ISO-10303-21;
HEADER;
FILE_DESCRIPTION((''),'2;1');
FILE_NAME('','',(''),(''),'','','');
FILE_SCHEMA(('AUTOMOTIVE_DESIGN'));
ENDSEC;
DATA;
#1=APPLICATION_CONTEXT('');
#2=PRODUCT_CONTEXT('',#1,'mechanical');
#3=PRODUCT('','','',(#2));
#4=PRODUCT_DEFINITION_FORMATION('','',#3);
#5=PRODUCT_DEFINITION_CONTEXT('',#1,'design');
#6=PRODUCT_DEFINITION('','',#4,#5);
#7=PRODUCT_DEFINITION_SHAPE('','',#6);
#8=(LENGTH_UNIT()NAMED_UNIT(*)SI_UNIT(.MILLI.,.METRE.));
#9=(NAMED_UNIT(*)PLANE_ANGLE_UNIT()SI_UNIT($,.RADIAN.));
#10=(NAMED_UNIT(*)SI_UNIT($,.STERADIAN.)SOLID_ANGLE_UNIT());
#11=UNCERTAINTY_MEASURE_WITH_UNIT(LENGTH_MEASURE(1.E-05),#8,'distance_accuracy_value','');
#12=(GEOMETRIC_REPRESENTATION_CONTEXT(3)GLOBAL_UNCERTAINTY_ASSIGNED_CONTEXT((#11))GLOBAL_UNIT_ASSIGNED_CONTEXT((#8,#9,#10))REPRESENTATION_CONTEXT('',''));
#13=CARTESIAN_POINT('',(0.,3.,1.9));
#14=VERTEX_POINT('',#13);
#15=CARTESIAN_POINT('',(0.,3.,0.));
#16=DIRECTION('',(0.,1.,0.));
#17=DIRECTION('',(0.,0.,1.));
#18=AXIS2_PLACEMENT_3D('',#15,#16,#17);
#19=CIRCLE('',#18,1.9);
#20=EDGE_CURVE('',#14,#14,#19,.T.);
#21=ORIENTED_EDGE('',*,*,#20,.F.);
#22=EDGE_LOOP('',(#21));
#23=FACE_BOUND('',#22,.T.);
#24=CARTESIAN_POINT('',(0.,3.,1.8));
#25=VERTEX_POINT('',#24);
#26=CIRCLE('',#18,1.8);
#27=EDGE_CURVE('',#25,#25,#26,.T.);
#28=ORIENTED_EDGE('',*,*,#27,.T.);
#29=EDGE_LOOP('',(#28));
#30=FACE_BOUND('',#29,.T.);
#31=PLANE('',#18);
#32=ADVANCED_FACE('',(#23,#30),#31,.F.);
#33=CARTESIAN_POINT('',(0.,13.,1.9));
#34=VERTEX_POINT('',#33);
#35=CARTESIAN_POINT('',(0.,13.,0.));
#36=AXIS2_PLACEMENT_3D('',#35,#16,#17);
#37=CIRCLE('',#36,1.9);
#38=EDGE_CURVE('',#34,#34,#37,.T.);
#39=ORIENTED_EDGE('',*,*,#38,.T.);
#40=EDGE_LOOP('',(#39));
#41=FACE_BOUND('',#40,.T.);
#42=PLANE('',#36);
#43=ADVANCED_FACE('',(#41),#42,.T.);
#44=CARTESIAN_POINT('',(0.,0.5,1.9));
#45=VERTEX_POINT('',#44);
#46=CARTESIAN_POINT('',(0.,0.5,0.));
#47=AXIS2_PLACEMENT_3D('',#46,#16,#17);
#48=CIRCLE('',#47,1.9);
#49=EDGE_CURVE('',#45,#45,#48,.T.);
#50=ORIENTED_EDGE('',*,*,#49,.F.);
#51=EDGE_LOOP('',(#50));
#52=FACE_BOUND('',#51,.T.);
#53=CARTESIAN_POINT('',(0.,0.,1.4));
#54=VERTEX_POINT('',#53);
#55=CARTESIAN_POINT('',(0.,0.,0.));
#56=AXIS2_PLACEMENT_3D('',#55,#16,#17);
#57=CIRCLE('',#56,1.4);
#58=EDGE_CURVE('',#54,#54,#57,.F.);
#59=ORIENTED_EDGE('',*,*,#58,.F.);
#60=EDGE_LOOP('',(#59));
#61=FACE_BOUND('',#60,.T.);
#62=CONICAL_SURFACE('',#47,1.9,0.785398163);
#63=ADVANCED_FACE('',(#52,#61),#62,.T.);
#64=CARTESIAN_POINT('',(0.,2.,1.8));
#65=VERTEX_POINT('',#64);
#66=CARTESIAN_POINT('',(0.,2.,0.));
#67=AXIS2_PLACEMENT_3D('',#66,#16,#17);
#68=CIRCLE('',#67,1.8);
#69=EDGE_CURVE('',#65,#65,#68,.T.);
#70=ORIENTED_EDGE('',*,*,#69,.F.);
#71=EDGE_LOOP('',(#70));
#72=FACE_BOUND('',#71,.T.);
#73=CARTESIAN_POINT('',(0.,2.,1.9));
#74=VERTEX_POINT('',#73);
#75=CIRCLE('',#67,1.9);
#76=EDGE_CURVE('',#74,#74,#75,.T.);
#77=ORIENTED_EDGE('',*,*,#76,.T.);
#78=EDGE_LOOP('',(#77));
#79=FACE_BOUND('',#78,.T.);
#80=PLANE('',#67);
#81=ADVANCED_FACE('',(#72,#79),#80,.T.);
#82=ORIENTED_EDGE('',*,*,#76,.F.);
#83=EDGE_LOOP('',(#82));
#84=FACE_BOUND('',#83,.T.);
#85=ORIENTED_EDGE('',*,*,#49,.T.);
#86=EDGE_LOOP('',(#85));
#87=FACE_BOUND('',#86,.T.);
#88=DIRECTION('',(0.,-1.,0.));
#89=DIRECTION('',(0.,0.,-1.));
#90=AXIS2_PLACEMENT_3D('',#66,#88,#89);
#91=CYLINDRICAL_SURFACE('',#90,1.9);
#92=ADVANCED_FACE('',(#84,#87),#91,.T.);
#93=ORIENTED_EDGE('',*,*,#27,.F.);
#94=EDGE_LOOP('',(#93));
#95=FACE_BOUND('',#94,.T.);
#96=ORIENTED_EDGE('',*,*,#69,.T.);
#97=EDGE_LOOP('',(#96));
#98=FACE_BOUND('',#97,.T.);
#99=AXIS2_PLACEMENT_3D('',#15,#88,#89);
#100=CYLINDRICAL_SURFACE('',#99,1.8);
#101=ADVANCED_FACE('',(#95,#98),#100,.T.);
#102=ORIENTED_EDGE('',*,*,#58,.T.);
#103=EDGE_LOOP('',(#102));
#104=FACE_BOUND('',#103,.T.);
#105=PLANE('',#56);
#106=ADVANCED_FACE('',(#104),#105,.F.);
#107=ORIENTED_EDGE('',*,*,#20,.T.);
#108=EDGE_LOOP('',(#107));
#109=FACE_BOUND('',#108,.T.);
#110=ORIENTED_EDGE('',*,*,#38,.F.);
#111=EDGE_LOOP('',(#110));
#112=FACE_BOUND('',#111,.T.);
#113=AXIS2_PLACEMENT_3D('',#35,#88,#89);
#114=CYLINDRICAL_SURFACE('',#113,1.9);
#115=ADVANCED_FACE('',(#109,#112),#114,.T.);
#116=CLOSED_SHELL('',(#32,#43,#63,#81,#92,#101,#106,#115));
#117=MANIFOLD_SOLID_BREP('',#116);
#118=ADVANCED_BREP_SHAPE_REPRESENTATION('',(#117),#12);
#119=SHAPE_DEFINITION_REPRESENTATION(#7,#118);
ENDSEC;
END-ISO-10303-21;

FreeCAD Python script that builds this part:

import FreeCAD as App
import Part
import Sketcher
Q = App.Units.Quantity


def edges_at(feature, points):
    """Names of the edges that pass closest to the given points."""
    edges = feature.Shape.Edges
    near = lambda p: min(range(len(edges)), key=lambda i: edges[i].distToShape(Part.Vertex(*p))[0])
    return sorted({f"Edge{near(p) + 1}" for p in points})

doc = App.newDocument("Part")
body = doc.addObject("PartDesign::Body", "Body")

# Sketch on XZ plane
sketch1 = body.newObject("Sketcher::SketchObject", "Sketch")
sketch1.AttachmentSupport = (doc.getObject("XZ_Plane"), [""])
sketch1.MapMode = "FlatFace"
sketch1.addGeometry(Part.Circle(App.Vector(0, 0, 0), App.Vector(0, 0, 1), 1.9), False)
sketch1.addConstraint([
    Sketcher.Constraint("Coincident", 0, 3, -1, 1),
    Sketcher.Constraint("Diameter", 0, Q("3.8 mm")),
])
pad1 = body.newObject("PartDesign::Pad", "Pad")
pad1.Profile = sketch1
pad1.Length = 2
pad1.Reversed = True

# Sketch on XZ plane
sketch2 = body.newObject("Sketcher::SketchObject", "Sketch001")
sketch2.AttachmentSupport = (doc.getObject("XZ_Plane"), [""])
sketch2.MapMode = "FlatFace"
sketch2.AttachmentOffset = App.Placement(App.Vector(0, 0, -2), App.Rotation())
sketch2.addGeometry(Part.Circle(App.Vector(0, 0, 0), App.Vector(0, 0, 1), 1.8), False)
sketch2.addConstraint([
    Sketcher.Constraint("Coincident", 0, 3, -1, 1),
    Sketcher.Constraint("Diameter", 0, Q("3.6 mm")),
])
pad2 = body.newObject("PartDesign::Pad", "Pad001")
pad2.Profile = sketch2
pad2.Length = 1
pad2.Reversed = True

# Sketch on XZ plane
sketch3 = body.newObject("Sketcher::SketchObject", "Sketch002")
sketch3.AttachmentSupport = (doc.getObject("XZ_Plane"), [""])
sketch3.MapMode = "FlatFace"
sketch3.AttachmentOffset = App.Placement(App.Vector(0, 0, -3), App.Rotation())
sketch3.addGeometry(Part.Circle(App.Vector(0, 0, 0), App.Vector(0, 0, 1), 1.9), False)
sketch3.addConstraint([
    Sketcher.Constraint("Coincident", 0, 3, -1, 1),
    Sketcher.Constraint("Diameter", 0, Q("3.8 mm")),
])
pad3 = body.newObject("PartDesign::Pad", "Pad002")
pad3.Profile = sketch3
pad3.Length = 10
pad3.Reversed = True
doc.recompute()

chamfer = body.newObject("PartDesign::Chamfer", "Chamfer")
chamfer.Base = (pad3, edges_at(pad3, [(0, 0, -1.9)]))
chamfer.Size = 0.5

doc.recompute()
